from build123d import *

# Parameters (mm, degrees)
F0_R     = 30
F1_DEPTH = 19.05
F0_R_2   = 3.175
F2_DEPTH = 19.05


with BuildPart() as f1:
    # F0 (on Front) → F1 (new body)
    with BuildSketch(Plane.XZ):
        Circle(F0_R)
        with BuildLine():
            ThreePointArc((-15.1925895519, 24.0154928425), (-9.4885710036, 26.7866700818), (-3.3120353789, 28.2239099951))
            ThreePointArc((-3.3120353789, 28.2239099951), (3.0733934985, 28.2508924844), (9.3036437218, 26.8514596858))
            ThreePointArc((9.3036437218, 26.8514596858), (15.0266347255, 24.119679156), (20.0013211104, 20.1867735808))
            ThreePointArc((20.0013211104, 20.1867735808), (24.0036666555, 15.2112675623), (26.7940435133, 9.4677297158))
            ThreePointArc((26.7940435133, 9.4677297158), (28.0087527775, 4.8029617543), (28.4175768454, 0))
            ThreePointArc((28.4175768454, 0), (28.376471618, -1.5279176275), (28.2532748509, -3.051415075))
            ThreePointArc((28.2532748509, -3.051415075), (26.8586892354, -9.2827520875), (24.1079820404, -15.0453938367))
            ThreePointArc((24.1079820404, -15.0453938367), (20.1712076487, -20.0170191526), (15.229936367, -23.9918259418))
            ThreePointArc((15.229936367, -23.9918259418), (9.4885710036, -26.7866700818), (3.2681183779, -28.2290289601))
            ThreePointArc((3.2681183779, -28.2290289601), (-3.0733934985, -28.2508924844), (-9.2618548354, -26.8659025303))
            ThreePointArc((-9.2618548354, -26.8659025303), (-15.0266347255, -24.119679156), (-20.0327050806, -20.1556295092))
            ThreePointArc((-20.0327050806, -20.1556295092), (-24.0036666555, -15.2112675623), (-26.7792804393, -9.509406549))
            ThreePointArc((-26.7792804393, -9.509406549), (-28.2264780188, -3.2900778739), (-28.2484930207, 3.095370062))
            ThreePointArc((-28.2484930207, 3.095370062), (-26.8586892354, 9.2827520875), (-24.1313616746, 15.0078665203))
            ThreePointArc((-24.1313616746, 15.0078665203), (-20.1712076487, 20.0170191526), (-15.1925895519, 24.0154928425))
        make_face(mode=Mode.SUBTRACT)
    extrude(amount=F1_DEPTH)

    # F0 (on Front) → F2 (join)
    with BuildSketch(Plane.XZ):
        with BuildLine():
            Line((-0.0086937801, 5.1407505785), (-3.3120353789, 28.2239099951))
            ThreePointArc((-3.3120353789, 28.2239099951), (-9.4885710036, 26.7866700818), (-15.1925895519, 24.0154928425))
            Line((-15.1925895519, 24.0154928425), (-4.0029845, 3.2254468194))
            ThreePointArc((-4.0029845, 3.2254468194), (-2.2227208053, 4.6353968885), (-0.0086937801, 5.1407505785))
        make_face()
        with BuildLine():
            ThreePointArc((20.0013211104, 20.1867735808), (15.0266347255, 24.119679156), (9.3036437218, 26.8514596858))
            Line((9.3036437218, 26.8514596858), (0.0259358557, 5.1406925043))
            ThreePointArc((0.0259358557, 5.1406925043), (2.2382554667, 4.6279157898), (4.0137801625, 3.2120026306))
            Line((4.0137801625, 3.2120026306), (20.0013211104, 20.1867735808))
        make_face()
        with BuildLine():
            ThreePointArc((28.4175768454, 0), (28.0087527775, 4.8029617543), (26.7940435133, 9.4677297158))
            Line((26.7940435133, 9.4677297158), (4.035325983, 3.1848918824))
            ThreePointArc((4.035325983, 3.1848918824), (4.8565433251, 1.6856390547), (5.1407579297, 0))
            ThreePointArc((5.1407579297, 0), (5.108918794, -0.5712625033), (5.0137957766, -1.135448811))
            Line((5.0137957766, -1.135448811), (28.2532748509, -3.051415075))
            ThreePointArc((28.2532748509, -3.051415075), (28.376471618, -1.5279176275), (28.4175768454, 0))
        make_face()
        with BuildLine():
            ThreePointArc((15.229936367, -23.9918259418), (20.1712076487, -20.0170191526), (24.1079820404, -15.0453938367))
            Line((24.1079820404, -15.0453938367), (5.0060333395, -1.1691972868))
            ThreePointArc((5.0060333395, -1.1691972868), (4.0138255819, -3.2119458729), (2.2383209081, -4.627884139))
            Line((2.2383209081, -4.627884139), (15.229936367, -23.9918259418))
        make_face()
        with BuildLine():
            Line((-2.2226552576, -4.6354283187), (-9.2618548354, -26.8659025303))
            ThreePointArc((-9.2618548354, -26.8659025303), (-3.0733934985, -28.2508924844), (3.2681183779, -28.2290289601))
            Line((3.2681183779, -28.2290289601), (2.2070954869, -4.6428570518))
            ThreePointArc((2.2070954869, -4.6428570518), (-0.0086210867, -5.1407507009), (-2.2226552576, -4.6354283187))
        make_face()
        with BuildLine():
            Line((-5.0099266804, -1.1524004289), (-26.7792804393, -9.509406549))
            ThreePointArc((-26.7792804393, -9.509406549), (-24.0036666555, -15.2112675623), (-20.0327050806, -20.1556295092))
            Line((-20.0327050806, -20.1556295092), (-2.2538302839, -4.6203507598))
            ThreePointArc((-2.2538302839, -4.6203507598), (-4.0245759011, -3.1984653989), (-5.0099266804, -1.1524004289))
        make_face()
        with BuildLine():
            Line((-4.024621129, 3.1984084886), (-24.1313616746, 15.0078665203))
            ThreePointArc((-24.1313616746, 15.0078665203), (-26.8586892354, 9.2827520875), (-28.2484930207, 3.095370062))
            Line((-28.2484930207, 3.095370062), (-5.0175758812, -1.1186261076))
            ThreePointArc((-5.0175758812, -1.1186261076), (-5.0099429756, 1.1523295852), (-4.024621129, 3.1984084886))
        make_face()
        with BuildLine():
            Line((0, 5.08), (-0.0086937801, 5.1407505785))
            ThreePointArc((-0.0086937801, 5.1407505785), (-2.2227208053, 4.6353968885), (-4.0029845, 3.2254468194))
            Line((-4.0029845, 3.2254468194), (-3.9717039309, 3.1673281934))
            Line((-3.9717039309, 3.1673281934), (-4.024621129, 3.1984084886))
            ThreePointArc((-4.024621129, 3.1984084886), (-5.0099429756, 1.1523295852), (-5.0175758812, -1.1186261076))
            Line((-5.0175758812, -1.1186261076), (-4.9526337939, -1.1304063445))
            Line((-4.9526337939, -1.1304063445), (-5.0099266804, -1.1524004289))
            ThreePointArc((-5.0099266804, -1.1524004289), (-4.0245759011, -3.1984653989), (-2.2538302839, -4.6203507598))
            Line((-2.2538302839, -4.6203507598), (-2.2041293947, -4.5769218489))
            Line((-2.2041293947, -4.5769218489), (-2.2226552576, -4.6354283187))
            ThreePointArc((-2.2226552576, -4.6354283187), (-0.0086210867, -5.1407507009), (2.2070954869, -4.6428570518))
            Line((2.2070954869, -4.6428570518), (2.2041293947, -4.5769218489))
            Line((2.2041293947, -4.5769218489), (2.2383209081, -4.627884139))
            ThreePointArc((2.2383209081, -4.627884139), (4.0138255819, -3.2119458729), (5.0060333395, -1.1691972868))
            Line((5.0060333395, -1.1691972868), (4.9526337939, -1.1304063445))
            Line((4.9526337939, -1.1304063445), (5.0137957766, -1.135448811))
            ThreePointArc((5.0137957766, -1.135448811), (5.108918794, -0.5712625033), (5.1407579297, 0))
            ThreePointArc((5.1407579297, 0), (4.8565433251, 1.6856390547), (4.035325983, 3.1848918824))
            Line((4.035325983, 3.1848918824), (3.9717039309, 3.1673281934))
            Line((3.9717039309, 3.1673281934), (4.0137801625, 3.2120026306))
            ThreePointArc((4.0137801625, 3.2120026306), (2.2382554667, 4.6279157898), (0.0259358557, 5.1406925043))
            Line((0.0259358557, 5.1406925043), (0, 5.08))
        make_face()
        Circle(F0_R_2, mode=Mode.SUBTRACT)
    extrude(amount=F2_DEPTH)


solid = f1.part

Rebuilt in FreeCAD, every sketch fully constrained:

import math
import FreeCAD as App
import Part
import Sketcher
Q = App.Units.Quantity

doc = App.newDocument("Part")
body = doc.addObject("PartDesign::Body", "Body")

# Sketch on XZ plane
sketch1 = body.newObject("Sketcher::SketchObject", "Sketch")
sketch1.AttachmentSupport = (doc.getObject("XZ_Plane"), [""])
sketch1.MapMode = "FlatFace"
sketch1.addGeometry(Part.Circle(App.Vector(0, 0, 0), App.Vector(0, 0, 1), 30), False)
sketch1.addGeometry(Part.ArcOfCircle(Part.Circle(App.Vector(0, 0, 0), App.Vector(0, 0, 1), 28.417577), math.radians(122.318108), math.radians(148.121539)), False)
sketch1.addGeometry(Part.ArcOfCircle(Part.Circle(App.Vector(0, 0, 0), App.Vector(0, 0, 1), 28.417577), math.radians(96.692967), math.radians(122.318108)), False)
sketch1.addGeometry(Part.ArcOfCircle(Part.Circle(App.Vector(0, 0, 0), App.Vector(0, 0, 1), 28.417577), math.radians(70.889536), math.radians(96.692967)), False)
sketch1.addGeometry(Part.ArcOfCircle(Part.Circle(App.Vector(0, 0, 0), App.Vector(0, 0, 1), 28.417577), math.radians(45.264396), math.radians(70.889536)), False)
sketch1.addGeometry(Part.ArcOfCircle(Part.Circle(App.Vector(0, 0, 0), App.Vector(0, 0, 1), 28.417577), math.radians(19.460965), math.radians(45.264396)), False)
sketch1.addGeometry(Part.ArcOfCircle(Part.Circle(App.Vector(0, 0, 0), App.Vector(0, 0, 1), 28.417577), math.radians(0), math.radians(19.460965)), False)
sketch1.addGeometry(Part.ArcOfCircle(Part.Circle(App.Vector(0, 0, 0), App.Vector(0, 0, 1), 28.417577), math.radians(-6.164176), math.radians(0)), False)
sketch1.addGeometry(Part.ArcOfCircle(Part.Circle(App.Vector(0, 0, 0), App.Vector(0, 0, 1), 28.417577), math.radians(-31.967607), math.radians(-6.164176)), False)
sketch1.addGeometry(Part.ArcOfCircle(Part.Circle(App.Vector(0, 0, 0), App.Vector(0, 0, 1), 28.417577), math.radians(-57.592747), math.radians(-31.967607)), False)
sketch1.addGeometry(Part.ArcOfCircle(Part.Circle(App.Vector(0, 0, 0), App.Vector(0, 0, 1), 28.417577), math.radians(-83.396178), math.radians(-57.592747)), False)
sketch1.addGeometry(Part.ArcOfCircle(Part.Circle(App.Vector(0, 0, 0), App.Vector(0, 0, 1), 28.417577), math.radians(-109.021318), math.radians(-83.396178)), False)
sketch1.addGeometry(Part.ArcOfCircle(Part.Circle(App.Vector(0, 0, 0), App.Vector(0, 0, 1), 28.417577), math.radians(-134.824749), math.radians(-109.021318)), False)
sketch1.addGeometry(Part.ArcOfCircle(Part.Circle(App.Vector(0, 0, 0), App.Vector(0, 0, 1), 28.417577), math.radians(-160.44989), math.radians(-134.824749)), False)
sketch1.addGeometry(Part.ArcOfCircle(Part.Circle(App.Vector(0, 0, 0), App.Vector(0, 0, 1), 28.417577), math.radians(173.746679), math.radians(199.55011)), False)
sketch1.addGeometry(Part.ArcOfCircle(Part.Circle(App.Vector(0, 0, 0), App.Vector(0, 0, 1), 28.417577), math.radians(148.121539), math.radians(173.746679)), False)
sketch1.addConstraint(Sketcher.Constraint("Tangent", 1, 1, 2, 2))
sketch1.addConstraint(Sketcher.Constraint("Tangent", 2, 1, 3, 2))
sketch1.addConstraint(Sketcher.Constraint("Tangent", 3, 1, 4, 2))
sketch1.addConstraint(Sketcher.Constraint("Tangent", 4, 1, 5, 2))
sketch1.addConstraint(Sketcher.Constraint("Tangent", 5, 1, 6, 2))
sketch1.addConstraint(Sketcher.Constraint("Tangent", 6, 1, 7, 2))
sketch1.addConstraint(Sketcher.Constraint("Tangent", 7, 1, 8, 2))
sketch1.addConstraint(Sketcher.Constraint("Tangent", 8, 1, 9, 2))
sketch1.addConstraint(Sketcher.Constraint("Tangent", 9, 1, 10, 2))
sketch1.addConstraint(Sketcher.Constraint("Tangent", 10, 1, 11, 2))
sketch1.addConstraint(Sketcher.Constraint("Tangent", 11, 1, 12, 2))
sketch1.addConstraint(Sketcher.Constraint("Tangent", 12, 1, 13, 2))
sketch1.addConstraint(Sketcher.Constraint("Tangent", 13, 1, 14, 2))
sketch1.addConstraint(Sketcher.Constraint("Tangent", 14, 1, 15, 2))
sketch1.addConstraint(Sketcher.Constraint("Tangent", 15, 1, 1, 2))
sketch1.addConstraint(Sketcher.Constraint("Coincident", 0, 3, -1, 1))
sketch1.addConstraint(Sketcher.Constraint("Coincident", 1, 3, -1, 1))
sketch1.addConstraint(Sketcher.Constraint("Coincident", 3, 3, -1, 1))
sketch1.addConstraint(Sketcher.Constraint("Coincident", 5, 3, -1, 1))
sketch1.addConstraint(Sketcher.Constraint("Coincident", 7, 3, -1, 1))
sketch1.addConstraint(Sketcher.Constraint("Coincident", 9, 3, -1, 1))
sketch1.addConstraint(Sketcher.Constraint("Coincident", 11, 3, -1, 1))
sketch1.addConstraint(Sketcher.Constraint("Coincident", 13, 3, -1, 1))
sketch1.addConstraint(Sketcher.Constraint("PointOnObject", 6, 1, -1))
sketch1.addConstraint(Sketcher.Constraint("Diameter", 0, 60.0))
sketch1.addConstraint(Sketcher.Constraint("Radius", 1, 28.417577))
sketch1.addConstraint(Sketcher.Constraint("DistanceX", 3, 1, 5, 1, 17.4904))
sketch1.addConstraint(Sketcher.Constraint("DistanceX", 7, 1, 6, 1, 0.164302))
sketch1.addConstraint(Sketcher.Constraint("DistanceY", 10, 1, 12, 1, 8.073399))
sketch1.addConstraint(Sketcher.Constraint("DistanceY", 12, 1, 14, 1, 23.251))
sketch1.addConstraint(Sketcher.Constraint("DistanceX", 1, 1, -1, 1, 15.19259))
sketch1.addConstraint(Sketcher.Constraint("DistanceY", -1, 1, 2, 1, 28.22391))
sketch1.addConstraint(Sketcher.Constraint("DistanceY", -1, 1, 3, 1, 26.85146))
sketch1.addConstraint(Sketcher.Constraint("DistanceX", -1, 1, 4, 1, 20.001321))
sketch1.addConstraint(Sketcher.Constraint("DistanceX", -1, 1, 10, 1, 3.268118))
sketch1.addConstraint(Sketcher.Constraint("DistanceX", 13, 1, -1, 1, 26.77928))
sketch1.addConstraint(Sketcher.Constraint("DistanceX", 15, 1, -1, 1, 24.131362))
sketch1.addConstraint(Sketcher.Constraint("DistanceY", 8, 1, 7, 1, 11.993979))
sketch1.addConstraint(Sketcher.Constraint("DistanceX", 9, 1, 7, 1, 13.023338))
sketch1.addConstraint(Sketcher.Constraint("DistanceX", 11, 1, 9, 1, 24.491791))
pad1 = body.newObject("PartDesign::Pad", "Pad")
pad1.Profile = sketch1
pad1.Length = Q("0.75 in")

# Sketch on XZ plane
sketch2 = body.newObject("Sketcher::SketchObject", "Sketch001")
sketch2.AttachmentSupport = (doc.getObject("XZ_Plane"), [""])
sketch2.MapMode = "FlatFace"
sketch2.addGeometry(Part.LineSegment(App.Vector(-0.008694, 5.140751, 0), App.Vector(-3.312035, 28.22391, 0)), False)
sketch2.addGeometry(Part.ArcOfCircle(Part.Circle(App.Vector(0, 0, 0), App.Vector(0, 0, 1), 28.417577), math.radians(96.692967), math.radians(122.318108)), False)
sketch2.addGeometry(Part.LineSegment(App.Vector(-15.19259, 24.015493, 0), App.Vector(-4.002985, 3.225447, 0)), False)
sketch2.addGeometry(Part.LineSegment(App.Vector(-4.002985, 3.225447, 0), App.Vector(-3.971704, 3.167328, 0)), False)
sketch2.addGeometry(Part.LineSegment(App.Vector(-3.971704, 3.167328, 0), App.Vector(-4.024621, 3.198408, 0)), False)
sketch2.addGeometry(Part.LineSegment(App.Vector(-4.024621, 3.198408, 0), App.Vector(-24.131362, 15.007867, 0)), False)
sketch2.addGeometry(Part.ArcOfCircle(Part.Circle(App.Vector(0, 0, 0), App.Vector(0, 0, 1), 28.417577), math.radians(148.121539), math.radians(173.746679)), False)
sketch2.addGeometry(Part.LineSegment(App.Vector(-28.248493, 3.09537, 0), App.Vector(-5.017576, -1.118626, 0)), False)
sketch2.addGeometry(Part.LineSegment(App.Vector(-5.017576, -1.118626, 0), App.Vector(-4.952634, -1.130406, 0)), False)
sketch2.addGeometry(Part.LineSegment(App.Vector(-4.952634, -1.130406, 0), App.Vector(-5.009927, -1.1524, 0)), False)
sketch2.addGeometry(Part.LineSegment(App.Vector(-5.009927, -1.1524, 0), App.Vector(-26.77928, -9.509407, 0)), False)
sketch2.addGeometry(Part.ArcOfCircle(Part.Circle(App.Vector(0, 0, 0), App.Vector(0, 0, 1), 28.417577), math.radians(-160.44989), math.radians(-134.824749)), False)
sketch2.addGeometry(Part.LineSegment(App.Vector(-20.032705, -20.15563, 0), App.Vector(-2.25383, -4.620351, 0)), False)
sketch2.addGeometry(Part.LineSegment(App.Vector(-2.25383, -4.620351, 0), App.Vector(-2.204129, -4.576922, 0)), False)
sketch2.addGeometry(Part.LineSegment(App.Vector(-2.204129, -4.576922, 0), App.Vector(-2.222655, -4.635428, 0)), False)
sketch2.addGeometry(Part.LineSegment(App.Vector(-2.222655, -4.635428, 0), App.Vector(-9.261855, -26.865903, 0)), False)
sketch2.addGeometry(Part.ArcOfCircle(Part.Circle(App.Vector(0, 0, 0), App.Vector(0, 0, 1), 28.417577), math.radians(-109.021318), math.radians(-83.396178)), False)
sketch2.addGeometry(Part.LineSegment(App.Vector(3.268118, -28.229029, 0), App.Vector(2.207095, -4.642857, 0)), False)
sketch2.addGeometry(Part.LineSegment(App.Vector(2.207095, -4.642857, 0), App.Vector(2.204129, -4.576922, 0)), False)
sketch2.addGeometry(Part.LineSegment(App.Vector(2.204129, -4.576922, 0), App.Vector(2.238321, -4.627884, 0)), False)
sketch2.addGeometry(Part.LineSegment(App.Vector(2.238321, -4.627884, 0), App.Vector(15.229936, -23.991826, 0)), False)
sketch2.addGeometry(Part.ArcOfCircle(Part.Circle(App.Vector(0, 0, 0), App.Vector(0, 0, 1), 28.417577), math.radians(-57.592747), math.radians(-31.967607)), False)
sketch2.addGeometry(Part.LineSegment(App.Vector(24.107982, -15.045394, 0), App.Vector(5.006033, -1.169197, 0)), False)
sketch2.addGeometry(Part.LineSegment(App.Vector(5.006033, -1.169197, 0), App.Vector(4.952634, -1.130406, 0)), False)
sketch2.addGeometry(Part.LineSegment(App.Vector(4.952634, -1.130406, 0), App.Vector(5.013796, -1.135449, 0)), False)
sketch2.addGeometry(Part.LineSegment(App.Vector(5.013796, -1.135449, 0), App.Vector(28.253275, -3.051415, 0)), False)
sketch2.addGeometry(Part.ArcOfCircle(Part.Circle(App.Vector(0, 0, 0), App.Vector(0, 0, 1), 28.417577), math.radians(-6.164176), math.radians(0)), False)
sketch2.addGeometry(Part.ArcOfCircle(Part.Circle(App.Vector(0, 0, 0), App.Vector(0, 0, 1), 28.417577), math.radians(0), math.radians(19.460965)), False)
sketch2.addGeometry(Part.LineSegment(App.Vector(26.794044, 9.46773, 0), App.Vector(4.035326, 3.184892, 0)), False)
sketch2.addGeometry(Part.LineSegment(App.Vector(4.035326, 3.184892, 0), App.Vector(3.971704, 3.167328, 0)), False)
sketch2.addGeometry(Part.LineSegment(App.Vector(3.971704, 3.167328, 0), App.Vector(4.01378, 3.212003, 0)), False)
sketch2.addGeometry(Part.LineSegment(App.Vector(4.01378, 3.212003, 0), App.Vector(20.001321, 20.186774, 0)), False)
sketch2.addGeometry(Part.ArcOfCircle(Part.Circle(App.Vector(0, 0, 0), App.Vector(0, 0, 1), 28.417577), math.radians(45.264396), math.radians(70.889536)), False)
sketch2.addGeometry(Part.LineSegment(App.Vector(9.303644, 26.85146, 0), App.Vector(0.025936, 5.140693, 0)), False)
sketch2.addGeometry(Part.LineSegment(App.Vector(0.025936, 5.140693, 0), App.Vector(0, 5.08, 0)), False)
sketch2.addGeometry(Part.LineSegment(App.Vector(0, 5.08, 0), App.Vector(-0.008694, 5.140751, 0)), False)
sketch2.addGeometry(Part.Circle(App.Vector(0, 0, 0), App.Vector(0, 0, 1), 3.175), False)
sketch2.addConstraint(Sketcher.Constraint("Coincident", 0, 2, 1, 1))
sketch2.addConstraint(Sketcher.Constraint("Coincident", 1, 2, 2, 1))
sketch2.addConstraint(Sketcher.Constraint("Coincident", 2, 2, 3, 1))
sketch2.addConstraint(Sketcher.Constraint("Coincident", 3, 2, 4, 1))
sketch2.addConstraint(Sketcher.Constraint("Coincident", 4, 2, 5, 1))
sketch2.addConstraint(Sketcher.Constraint("Coincident", 5, 2, 6, 1))
sketch2.addConstraint(Sketcher.Constraint("Coincident", 6, 2, 7, 1))
sketch2.addConstraint(Sketcher.Constraint("Coincident", 7, 2, 8, 1))
sketch2.addConstraint(Sketcher.Constraint("Coincident", 8, 2, 9, 1))
sketch2.addConstraint(Sketcher.Constraint("Coincident", 9, 2, 10, 1))
sketch2.addConstraint(Sketcher.Constraint("Coincident", 10, 2, 11, 1))
sketch2.addConstraint(Sketcher.Constraint("Coincident", 11, 2, 12, 1))
sketch2.addConstraint(Sketcher.Constraint("Coincident", 12, 2, 13, 1))
sketch2.addConstraint(Sketcher.Constraint("Coincident", 13, 2, 14, 1))
sketch2.addConstraint(Sketcher.Constraint("Coincident", 14, 2, 15, 1))
sketch2.addConstraint(Sketcher.Constraint("Coincident", 15, 2, 16, 1))
sketch2.addConstraint(Sketcher.Constraint("Coincident", 16, 2, 17, 1))
sketch2.addConstraint(Sketcher.Constraint("Coincident", 17, 2, 18, 1))
sketch2.addConstraint(Sketcher.Constraint("Coincident", 18, 2, 19, 1))
sketch2.addConstraint(Sketcher.Constraint("Coincident", 19, 2, 20, 1))
sketch2.addConstraint(Sketcher.Constraint("Coincident", 20, 2, 21, 1))
sketch2.addConstraint(Sketcher.Constraint("Coincident", 21, 2, 22, 1))
sketch2.addConstraint(Sketcher.Constraint("Coincident", 22, 2, 23, 1))
sketch2.addConstraint(Sketcher.Constraint("Coincident", 23, 2, 24, 1))
sketch2.addConstraint(Sketcher.Constraint("Coincident", 24, 2, 25, 1))
sketch2.addConstraint(Sketcher.Constraint("Coincident", 25, 2, 26, 1))
sketch2.addConstraint(Sketcher.Constraint("Coincident", 26, 2, 27, 1))
sketch2.addConstraint(Sketcher.Constraint("Coincident", 27, 2, 28, 1))
sketch2.addConstraint(Sketcher.Constraint("Coincident", 28, 2, 29, 1))
sketch2.addConstraint(Sketcher.Constraint("Coincident", 29, 2, 30, 1))
sketch2.addConstraint(Sketcher.Constraint("Coincident", 30, 2, 31, 1))
sketch2.addConstraint(Sketcher.Constraint("Coincident", 31, 2, 32, 1))
sketch2.addConstraint(Sketcher.Constraint("Coincident", 32, 2, 33, 1))
sketch2.addConstraint(Sketcher.Constraint("Coincident", 33, 2, 34, 1))
sketch2.addConstraint(Sketcher.Constraint("Coincident", 34, 2, 35, 1))
sketch2.addConstraint(Sketcher.Constraint("Coincident", 35, 2, 0, 1))
sketch2.addConstraint(Sketcher.Constraint("Coincident", 1, 3, -1, 1))
sketch2.addConstraint(Sketcher.Constraint("Coincident", 6, 3, -1, 1))
sketch2.addConstraint(Sketcher.Constraint("Coincident", 11, 3, -1, 1))
sketch2.addConstraint(Sketcher.Constraint("Coincident", 16, 3, -1, 1))
sketch2.addConstraint(Sketcher.Constraint("Coincident", 21, 3, -1, 1))
sketch2.addConstraint(Sketcher.Constraint("Coincident", 26, 3, -1, 1))
sketch2.addConstraint(Sketcher.Constraint("Coincident", 27, 3, -1, 1))
sketch2.addConstraint(Sketcher.Constraint("Coincident", 32, 3, -1, 1))
sketch2.addConstraint(Sketcher.Constraint("Coincident", 36, 3, -1, 1))
sketch2.addConstraint(Sketcher.Constraint("PointOnObject", 26, 2, -1))
sketch2.addConstraint(Sketcher.Constraint("PointOnObject", 34, 2, -2))
sketch2.addConstraint(Sketcher.Constraint("Diameter", 36, Q("0.25 in")))
sketch2.addConstraint(Sketcher.Constraint("DistanceY", -1, 1, 34, 2, Q("0.2 in")))
sketch2.addConstraint(Sketcher.Constraint("DistanceY", 28, 2, 33, 2, Q("0.077 in")))
sketch2.addConstraint(Sketcher.Constraint("DistanceY", 19, 2, -1, 1, Q("0.1822002 in")))
sketch2.addConstraint(Sketcher.Constraint("Radius", 1, 28.417577))
sketch2.addConstraint(Sketcher.Constraint("Radius", 6, 28.417577))
sketch2.addConstraint(Sketcher.Constraint("Radius", 11, 28.417577))
sketch2.addConstraint(Sketcher.Constraint("Radius", 16, 28.417577))
sketch2.addConstraint(Sketcher.Constraint("Radius", 21, 28.417577))
sketch2.addConstraint(Sketcher.Constraint("Radius", 26, 28.417577))
sketch2.addConstraint(Sketcher.Constraint("Radius", 32, 28.417577))
sketch2.addConstraint(Sketcher.Constraint("DistanceX", 17, 2, 24, 2, Q("0.1105 in")))
sketch2.addConstraint(Sketcher.Constraint("Distance", 3, 0.066002))
sketch2.addConstraint(Sketcher.Constraint("Distance", 8, 0.066002))
sketch2.addConstraint(Sketcher.Constraint("Distance", 13, 0.066002))
sketch2.addConstraint(Sketcher.Constraint("Distance", 18, 0.066002))
sketch2.addConstraint(Sketcher.Constraint("Distance", 23, 0.066002))
sketch2.addConstraint(Sketcher.Constraint("Distance", 29, 0.066002))
sketch2.addConstraint(Sketcher.Constraint("Distance", 34, 0.066002))
sketch2.addConstraint(Sketcher.Constraint("DistanceY", 9, 2, -1, 1, 1.1524))
sketch2.addConstraint(Sketcher.Constraint("DistanceY", 10, 2, 8, 2, 8.379))
sketch2.addConstraint(Sketcher.Constraint("DistanceY", 11, 2, 6, 2, 23.251))
sketch2.addConstraint(Sketcher.Constraint("DistanceX", 12, 2, 13, 2, 0.049701))
sketch2.addConstraint(Sketcher.Constraint("DistanceX", 15, 2, 14, 2, 7.0392))
sketch2.addConstraint(Sketcher.Constraint("DistanceY", 16, 2, 14, 2, 23.593601))
sketch2.addConstraint(Sketcher.Constraint("DistanceY", 16, 2, 11, 2, 8.073399))
sketch2.addConstraint(Sketcher.Constraint("DistanceX", 23, 2, 22, 2, 0.0534))
sketch2.addConstraint(Sketcher.Constraint("DistanceX", 25, 2, 26, 2, 0.164302))
sketch2.addConstraint(Sketcher.Constraint("DistanceY", 23, 2, 28, 2, 4.315298))
sketch2.addConstraint(Sketcher.Constraint("DistanceY", 22, 2, 30, 2, 4.3812))
sketch2.addConstraint(Sketcher.Constraint("Distance", 4, 0.061369))
sketch2.addConstraint(Sketcher.Constraint("Distance", 9, 0.061369))
sketch2.addConstraint(Sketcher.Constraint("Distance", 14, 0.061369))
sketch2.addConstraint(Sketcher.Constraint("Distance", 19, 0.061369))
sketch2.addConstraint(Sketcher.Constraint("Distance", 24, 0.061369))
sketch2.addConstraint(Sketcher.Constraint("Distance", 30, 0.061369))
sketch2.addConstraint(Sketcher.Constraint("Distance", 35, 0.061369))
sketch2.addConstraint(Sketcher.Constraint("DistanceY", -1, 1, 0, 2, 28.22391))
sketch2.addConstraint(Sketcher.Constraint("DistanceX", 1, 2, -1, 1, 15.19259))
sketch2.addConstraint(Sketcher.Constraint("DistanceY", -1, 1, 3, 2, 3.167328))
sketch2.addConstraint(Sketcher.Constraint("DistanceX", 4, 2, -1, 1, 4.024621))
sketch2.addConstraint(Sketcher.Constraint("DistanceY", -1, 1, 4, 2, 3.198408))
sketch2.addConstraint(Sketcher.Constraint("DistanceX", 5, 2, -1, 1, 24.131362))
sketch2.addConstraint(Sketcher.Constraint("DistanceY", -1, 1, 6, 2, 3.09537))
sketch2.addConstraint(Sketcher.Constraint("DistanceX", 10, 2, -1, 1, 26.77928))
sketch2.addConstraint(Sketcher.Constraint("DistanceX", 12, 2, -1, 1, 2.25383))
sketch2.addConstraint(Sketcher.Constraint("DistanceY", 12, 2, -1, 1, 4.620351))
sketch2.addConstraint(Sketcher.Constraint("DistanceX", -1, 1, 18, 2, 2.204129))
sketch2.addConstraint(Sketcher.Constraint("DistanceY", 18, 2, -1, 1, 4.576922))
sketch2.addConstraint(Sketcher.Constraint("DistanceY", 24, 2, -1, 1, 1.135449))
sketch2.addConstraint(Sketcher.Constraint("DistanceY", -1, 1, 27, 2, 9.46773))
sketch2.addConstraint(Sketcher.Constraint("DistanceY", -1, 1, 28, 2, 3.184892))
sketch2.addConstraint(Sketcher.Constraint("DistanceY", -1, 1, 29, 2, 3.167328))
sketch2.addConstraint(Sketcher.Constraint("DistanceX", -1, 1, 30, 2, 4.01378))
sketch2.addConstraint(Sketcher.Constraint("DistanceX", -1, 1, 31, 2, 20.001321))
sketch2.addConstraint(Sketcher.Constraint("DistanceY", -1, 1, 32, 2, 26.85146))
sketch2.addConstraint(Sketcher.Constraint("DistanceY", -1, 1, 35, 2, 5.140751))
sketch2.addConstraint(Sketcher.Constraint("DistanceX", 2, 2, 3, 2, 0.031281))
sketch2.addConstraint(Sketcher.Constraint("DistanceX", 7, 2, 3, 2, 1.045872))
sketch2.addConstraint(Sketcher.Constraint("DistanceY", 8, 2, 7, 2, 0.01178))
sketch2.addConstraint(Sketcher.Constraint("DistanceX", 14, 2, 17, 2, 4.429751))
sketch2.addConstraint(Sketcher.Constraint("DistanceY", 20, 2, 19, 2, 19.363942))
sketch2.addConstraint(Sketcher.Constraint("DistanceX", 19, 2, 21, 2, 21.869661))
pad2 = body.newObject("PartDesign::Pad", "Pad001")
pad2.Profile = sketch2
pad2.Length = Q("0.75 in")

doc.recompute()
